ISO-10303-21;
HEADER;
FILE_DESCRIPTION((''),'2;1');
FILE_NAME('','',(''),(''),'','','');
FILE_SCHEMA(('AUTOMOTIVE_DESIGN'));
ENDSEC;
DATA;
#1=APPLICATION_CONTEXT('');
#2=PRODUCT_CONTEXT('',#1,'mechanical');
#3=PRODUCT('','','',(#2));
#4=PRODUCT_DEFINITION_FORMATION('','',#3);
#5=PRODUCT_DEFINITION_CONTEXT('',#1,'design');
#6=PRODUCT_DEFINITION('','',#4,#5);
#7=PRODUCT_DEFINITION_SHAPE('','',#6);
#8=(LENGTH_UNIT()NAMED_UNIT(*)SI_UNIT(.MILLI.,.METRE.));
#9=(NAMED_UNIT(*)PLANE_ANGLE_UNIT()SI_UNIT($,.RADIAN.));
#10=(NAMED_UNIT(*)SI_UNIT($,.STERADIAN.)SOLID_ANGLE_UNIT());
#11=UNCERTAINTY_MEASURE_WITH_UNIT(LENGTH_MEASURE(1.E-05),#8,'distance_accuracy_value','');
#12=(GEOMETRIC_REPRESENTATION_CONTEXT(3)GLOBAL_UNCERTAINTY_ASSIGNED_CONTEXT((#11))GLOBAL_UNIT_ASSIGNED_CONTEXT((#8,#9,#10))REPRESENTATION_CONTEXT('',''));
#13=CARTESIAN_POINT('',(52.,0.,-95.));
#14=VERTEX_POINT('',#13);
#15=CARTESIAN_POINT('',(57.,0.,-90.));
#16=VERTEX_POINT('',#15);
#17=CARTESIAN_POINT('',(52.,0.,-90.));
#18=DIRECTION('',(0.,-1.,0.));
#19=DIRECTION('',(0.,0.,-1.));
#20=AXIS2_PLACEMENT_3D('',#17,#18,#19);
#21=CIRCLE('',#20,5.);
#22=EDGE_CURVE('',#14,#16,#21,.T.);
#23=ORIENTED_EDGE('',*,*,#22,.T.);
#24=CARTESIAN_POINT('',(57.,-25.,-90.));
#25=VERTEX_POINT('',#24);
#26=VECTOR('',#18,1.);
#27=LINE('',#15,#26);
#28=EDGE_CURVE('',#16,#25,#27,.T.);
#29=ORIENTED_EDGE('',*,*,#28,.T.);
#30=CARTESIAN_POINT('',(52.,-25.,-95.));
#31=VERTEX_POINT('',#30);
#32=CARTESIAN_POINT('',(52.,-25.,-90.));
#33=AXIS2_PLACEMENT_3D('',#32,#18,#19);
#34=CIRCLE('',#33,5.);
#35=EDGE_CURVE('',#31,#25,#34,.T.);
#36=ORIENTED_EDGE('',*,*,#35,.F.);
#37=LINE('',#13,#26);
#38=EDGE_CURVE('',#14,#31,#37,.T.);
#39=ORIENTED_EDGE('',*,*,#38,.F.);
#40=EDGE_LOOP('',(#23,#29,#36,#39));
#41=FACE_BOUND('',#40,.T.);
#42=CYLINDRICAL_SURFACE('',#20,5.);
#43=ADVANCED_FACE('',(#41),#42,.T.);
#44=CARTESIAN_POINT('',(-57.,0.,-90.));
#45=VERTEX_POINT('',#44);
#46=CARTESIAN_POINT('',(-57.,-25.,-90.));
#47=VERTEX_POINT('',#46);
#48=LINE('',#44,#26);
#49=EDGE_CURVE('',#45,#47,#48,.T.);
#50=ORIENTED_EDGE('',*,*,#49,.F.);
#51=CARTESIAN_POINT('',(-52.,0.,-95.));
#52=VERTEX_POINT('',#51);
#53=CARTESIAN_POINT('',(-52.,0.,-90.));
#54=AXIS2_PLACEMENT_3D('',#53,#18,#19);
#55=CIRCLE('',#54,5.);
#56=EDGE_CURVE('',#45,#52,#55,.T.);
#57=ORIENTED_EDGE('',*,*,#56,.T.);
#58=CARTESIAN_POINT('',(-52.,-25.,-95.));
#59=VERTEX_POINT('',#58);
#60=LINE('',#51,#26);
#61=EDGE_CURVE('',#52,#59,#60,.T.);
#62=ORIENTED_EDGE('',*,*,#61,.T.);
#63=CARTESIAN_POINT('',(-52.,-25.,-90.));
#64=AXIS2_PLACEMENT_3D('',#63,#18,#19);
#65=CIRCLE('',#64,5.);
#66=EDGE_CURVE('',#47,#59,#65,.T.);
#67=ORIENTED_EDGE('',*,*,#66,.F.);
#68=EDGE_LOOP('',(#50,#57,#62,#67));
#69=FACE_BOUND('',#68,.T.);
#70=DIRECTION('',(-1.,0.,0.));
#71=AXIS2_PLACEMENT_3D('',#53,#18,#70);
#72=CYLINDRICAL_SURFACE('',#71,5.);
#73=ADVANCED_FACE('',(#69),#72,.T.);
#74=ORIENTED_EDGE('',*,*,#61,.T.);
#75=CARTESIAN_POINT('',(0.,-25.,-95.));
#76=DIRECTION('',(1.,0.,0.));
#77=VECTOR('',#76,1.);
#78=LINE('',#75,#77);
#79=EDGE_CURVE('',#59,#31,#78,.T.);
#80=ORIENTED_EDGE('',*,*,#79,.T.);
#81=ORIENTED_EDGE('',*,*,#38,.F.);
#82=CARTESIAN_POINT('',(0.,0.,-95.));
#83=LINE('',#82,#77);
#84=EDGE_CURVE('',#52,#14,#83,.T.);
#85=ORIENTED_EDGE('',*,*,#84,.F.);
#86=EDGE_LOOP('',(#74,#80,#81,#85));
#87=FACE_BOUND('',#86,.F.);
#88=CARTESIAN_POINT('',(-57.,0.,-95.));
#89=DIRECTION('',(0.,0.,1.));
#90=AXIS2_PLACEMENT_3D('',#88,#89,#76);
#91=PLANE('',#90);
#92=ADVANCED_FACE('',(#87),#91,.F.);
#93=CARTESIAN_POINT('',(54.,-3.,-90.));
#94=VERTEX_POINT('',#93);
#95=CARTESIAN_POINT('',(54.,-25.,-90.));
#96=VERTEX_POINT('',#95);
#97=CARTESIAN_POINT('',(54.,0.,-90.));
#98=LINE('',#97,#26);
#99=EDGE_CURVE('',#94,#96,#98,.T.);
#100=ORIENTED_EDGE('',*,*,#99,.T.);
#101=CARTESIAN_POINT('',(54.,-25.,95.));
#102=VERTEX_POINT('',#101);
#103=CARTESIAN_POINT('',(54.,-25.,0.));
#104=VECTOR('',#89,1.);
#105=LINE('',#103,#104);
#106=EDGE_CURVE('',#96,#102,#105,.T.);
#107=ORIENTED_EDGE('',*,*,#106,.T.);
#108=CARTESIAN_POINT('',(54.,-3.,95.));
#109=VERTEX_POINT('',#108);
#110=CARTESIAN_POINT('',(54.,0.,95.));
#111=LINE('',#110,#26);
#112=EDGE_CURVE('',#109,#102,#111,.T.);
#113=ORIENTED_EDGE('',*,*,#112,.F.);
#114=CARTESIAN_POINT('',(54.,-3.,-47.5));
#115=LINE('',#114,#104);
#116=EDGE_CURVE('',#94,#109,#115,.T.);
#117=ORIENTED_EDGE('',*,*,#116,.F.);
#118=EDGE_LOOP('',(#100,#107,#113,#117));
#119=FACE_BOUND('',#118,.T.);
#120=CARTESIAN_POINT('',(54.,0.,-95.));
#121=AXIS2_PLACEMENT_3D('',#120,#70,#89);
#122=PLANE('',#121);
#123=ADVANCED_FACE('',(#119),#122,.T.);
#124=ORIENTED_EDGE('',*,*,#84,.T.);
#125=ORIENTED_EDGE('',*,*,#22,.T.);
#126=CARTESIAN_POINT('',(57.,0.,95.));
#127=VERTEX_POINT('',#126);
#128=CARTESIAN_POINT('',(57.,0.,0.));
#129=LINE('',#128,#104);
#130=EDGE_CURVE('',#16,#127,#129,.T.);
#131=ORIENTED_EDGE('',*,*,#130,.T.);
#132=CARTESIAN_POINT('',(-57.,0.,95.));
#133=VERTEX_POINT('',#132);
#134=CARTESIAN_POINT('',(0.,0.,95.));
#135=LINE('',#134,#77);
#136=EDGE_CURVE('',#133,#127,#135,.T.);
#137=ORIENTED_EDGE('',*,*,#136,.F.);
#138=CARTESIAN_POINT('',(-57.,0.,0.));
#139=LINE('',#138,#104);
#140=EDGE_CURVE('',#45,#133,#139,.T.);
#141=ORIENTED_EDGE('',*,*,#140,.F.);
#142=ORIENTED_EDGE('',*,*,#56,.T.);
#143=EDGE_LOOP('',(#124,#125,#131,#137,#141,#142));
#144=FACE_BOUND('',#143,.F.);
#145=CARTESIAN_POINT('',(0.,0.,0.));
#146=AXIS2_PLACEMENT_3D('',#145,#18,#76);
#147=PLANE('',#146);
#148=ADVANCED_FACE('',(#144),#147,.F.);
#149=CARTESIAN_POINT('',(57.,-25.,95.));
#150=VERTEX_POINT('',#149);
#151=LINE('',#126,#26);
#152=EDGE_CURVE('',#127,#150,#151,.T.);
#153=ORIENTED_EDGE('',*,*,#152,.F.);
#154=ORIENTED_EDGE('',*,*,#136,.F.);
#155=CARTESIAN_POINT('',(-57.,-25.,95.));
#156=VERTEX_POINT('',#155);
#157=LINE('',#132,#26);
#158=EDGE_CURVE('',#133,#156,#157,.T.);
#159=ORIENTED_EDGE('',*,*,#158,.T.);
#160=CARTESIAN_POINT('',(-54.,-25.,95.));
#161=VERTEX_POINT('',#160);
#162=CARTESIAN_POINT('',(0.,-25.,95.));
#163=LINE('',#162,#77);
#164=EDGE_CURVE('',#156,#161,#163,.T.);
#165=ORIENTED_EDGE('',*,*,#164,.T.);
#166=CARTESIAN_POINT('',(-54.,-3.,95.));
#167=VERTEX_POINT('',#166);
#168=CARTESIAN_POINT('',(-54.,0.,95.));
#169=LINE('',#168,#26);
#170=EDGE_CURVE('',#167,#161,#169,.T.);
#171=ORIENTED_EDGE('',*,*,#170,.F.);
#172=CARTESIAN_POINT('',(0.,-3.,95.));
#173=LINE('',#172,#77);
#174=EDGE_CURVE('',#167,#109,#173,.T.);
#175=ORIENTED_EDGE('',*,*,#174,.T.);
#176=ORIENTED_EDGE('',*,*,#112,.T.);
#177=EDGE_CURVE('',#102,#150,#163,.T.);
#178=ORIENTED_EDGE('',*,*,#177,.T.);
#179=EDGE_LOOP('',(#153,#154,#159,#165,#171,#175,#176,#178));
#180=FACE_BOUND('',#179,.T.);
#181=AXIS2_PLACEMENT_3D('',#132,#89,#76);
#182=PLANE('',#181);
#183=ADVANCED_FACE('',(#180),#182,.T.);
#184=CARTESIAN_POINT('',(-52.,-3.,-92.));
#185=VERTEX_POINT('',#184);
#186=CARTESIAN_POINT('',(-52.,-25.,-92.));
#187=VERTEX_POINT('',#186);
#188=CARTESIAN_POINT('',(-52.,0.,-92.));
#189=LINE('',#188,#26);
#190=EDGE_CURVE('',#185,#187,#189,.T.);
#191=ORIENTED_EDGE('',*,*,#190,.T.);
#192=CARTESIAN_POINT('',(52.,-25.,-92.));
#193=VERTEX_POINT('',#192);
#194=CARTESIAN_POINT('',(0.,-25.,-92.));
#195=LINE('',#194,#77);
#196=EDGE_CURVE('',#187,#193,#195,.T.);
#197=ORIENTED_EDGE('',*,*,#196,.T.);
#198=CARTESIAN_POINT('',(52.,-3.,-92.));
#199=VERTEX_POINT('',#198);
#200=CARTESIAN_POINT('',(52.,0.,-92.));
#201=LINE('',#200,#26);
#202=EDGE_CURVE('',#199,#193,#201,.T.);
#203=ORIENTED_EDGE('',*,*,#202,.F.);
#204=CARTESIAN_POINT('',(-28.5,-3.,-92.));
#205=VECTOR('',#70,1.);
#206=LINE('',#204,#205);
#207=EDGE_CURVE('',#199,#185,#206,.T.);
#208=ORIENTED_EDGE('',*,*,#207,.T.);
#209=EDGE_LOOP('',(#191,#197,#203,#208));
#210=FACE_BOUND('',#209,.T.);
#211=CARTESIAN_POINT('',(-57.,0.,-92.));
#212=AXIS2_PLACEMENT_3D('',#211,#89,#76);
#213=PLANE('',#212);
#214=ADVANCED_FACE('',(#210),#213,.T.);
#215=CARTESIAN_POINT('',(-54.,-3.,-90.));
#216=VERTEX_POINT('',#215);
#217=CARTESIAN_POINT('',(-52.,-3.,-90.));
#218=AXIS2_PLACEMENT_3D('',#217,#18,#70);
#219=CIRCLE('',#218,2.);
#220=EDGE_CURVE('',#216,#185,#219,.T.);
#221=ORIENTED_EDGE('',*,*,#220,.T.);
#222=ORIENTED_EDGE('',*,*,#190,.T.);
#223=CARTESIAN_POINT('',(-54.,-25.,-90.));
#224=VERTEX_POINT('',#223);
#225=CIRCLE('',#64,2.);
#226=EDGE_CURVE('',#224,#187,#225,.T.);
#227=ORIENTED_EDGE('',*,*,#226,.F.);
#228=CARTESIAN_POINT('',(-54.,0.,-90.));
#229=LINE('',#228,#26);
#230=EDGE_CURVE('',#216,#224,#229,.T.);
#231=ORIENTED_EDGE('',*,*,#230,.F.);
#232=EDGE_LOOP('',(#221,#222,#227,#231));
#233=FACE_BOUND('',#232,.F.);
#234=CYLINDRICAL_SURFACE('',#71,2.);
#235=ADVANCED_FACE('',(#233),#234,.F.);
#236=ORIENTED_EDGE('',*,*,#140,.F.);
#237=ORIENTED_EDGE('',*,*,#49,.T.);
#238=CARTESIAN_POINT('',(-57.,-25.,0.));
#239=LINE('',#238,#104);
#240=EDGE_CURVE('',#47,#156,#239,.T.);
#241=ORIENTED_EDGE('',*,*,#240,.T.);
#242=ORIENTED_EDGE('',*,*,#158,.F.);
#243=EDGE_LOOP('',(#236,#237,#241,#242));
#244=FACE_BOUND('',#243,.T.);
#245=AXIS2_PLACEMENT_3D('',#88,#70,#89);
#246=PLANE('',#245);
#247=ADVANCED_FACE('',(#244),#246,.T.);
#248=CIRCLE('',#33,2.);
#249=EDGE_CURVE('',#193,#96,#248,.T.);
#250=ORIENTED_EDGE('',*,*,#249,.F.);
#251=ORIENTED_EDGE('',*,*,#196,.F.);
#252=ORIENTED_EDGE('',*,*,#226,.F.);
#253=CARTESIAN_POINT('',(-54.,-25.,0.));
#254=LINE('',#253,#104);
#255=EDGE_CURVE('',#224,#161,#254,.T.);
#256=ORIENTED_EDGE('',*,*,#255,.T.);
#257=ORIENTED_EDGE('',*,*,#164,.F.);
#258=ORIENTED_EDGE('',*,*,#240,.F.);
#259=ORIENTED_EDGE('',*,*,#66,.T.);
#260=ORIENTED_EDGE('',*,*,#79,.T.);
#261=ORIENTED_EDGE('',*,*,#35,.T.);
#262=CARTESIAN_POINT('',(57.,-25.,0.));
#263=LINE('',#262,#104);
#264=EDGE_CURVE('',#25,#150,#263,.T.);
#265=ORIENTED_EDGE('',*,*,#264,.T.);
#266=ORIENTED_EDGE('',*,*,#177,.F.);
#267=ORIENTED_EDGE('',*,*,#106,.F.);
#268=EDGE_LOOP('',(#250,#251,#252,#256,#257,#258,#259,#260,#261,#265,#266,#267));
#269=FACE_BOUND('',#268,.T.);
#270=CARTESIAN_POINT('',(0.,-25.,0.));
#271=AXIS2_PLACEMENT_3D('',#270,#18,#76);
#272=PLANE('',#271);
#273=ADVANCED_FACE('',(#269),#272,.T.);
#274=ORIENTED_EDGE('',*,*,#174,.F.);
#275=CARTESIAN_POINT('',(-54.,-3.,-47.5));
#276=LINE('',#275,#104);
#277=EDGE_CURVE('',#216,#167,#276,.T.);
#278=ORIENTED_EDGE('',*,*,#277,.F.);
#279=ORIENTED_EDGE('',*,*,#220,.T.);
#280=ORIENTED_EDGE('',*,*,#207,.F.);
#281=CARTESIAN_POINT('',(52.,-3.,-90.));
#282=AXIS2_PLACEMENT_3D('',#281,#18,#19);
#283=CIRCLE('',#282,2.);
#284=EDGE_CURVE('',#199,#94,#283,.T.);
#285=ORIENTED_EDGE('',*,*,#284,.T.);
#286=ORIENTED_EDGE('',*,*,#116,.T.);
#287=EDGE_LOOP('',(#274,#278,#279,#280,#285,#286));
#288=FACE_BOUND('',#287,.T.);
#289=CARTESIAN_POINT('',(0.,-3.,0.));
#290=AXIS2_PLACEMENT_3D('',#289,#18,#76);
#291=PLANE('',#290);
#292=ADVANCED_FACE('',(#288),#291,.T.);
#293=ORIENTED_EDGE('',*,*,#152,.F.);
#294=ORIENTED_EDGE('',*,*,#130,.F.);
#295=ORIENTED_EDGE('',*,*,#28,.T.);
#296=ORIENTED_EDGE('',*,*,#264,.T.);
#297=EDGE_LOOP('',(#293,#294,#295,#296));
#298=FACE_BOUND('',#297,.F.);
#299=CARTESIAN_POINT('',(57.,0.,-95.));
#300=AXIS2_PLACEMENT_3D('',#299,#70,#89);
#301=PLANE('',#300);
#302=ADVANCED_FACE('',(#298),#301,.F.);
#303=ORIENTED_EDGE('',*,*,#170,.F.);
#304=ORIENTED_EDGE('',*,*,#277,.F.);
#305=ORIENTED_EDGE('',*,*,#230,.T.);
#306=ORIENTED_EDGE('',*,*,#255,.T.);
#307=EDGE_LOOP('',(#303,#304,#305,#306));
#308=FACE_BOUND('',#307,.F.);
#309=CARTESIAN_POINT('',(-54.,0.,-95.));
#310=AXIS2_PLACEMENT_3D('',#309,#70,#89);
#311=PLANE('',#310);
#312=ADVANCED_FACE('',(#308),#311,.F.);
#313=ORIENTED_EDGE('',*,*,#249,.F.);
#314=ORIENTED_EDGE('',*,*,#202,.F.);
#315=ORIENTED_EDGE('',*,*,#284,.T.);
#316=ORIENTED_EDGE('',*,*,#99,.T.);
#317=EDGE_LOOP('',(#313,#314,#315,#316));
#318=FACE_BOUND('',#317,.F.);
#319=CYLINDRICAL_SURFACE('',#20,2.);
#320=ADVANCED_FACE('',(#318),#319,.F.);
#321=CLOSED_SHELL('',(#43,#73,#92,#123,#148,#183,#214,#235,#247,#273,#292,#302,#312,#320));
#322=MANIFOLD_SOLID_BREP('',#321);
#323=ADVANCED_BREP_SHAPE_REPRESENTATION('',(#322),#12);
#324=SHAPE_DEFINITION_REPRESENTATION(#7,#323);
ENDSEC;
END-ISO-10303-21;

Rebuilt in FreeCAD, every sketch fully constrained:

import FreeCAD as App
import Part
import Sketcher

V = App.Vector


def edges_at(feature, points):
    """Names of the edges that pass closest to the given points."""
    edges = feature.Shape.Edges
    near = lambda p: min(range(len(edges)), key=lambda i: edges[i].distToShape(Part.Vertex(*p))[0])
    return sorted({f"Edge{near(p) + 1}" for p in points})


def faces_at(feature, points):
    """Names of the faces that lie closest to the given points."""
    faces = feature.Shape.Faces
    near = lambda p: min(range(len(faces)), key=lambda i: faces[i].distToShape(Part.Vertex(*p))[0])
    return sorted({f"Face{near(p) + 1}" for p in points})


def add_polygon(sketch, points):
    """Adds a closed chain of lines whose ends are joined by coincident constraints."""
    first, n = sketch.GeometryCount, len(points)
    for a, b in zip(points, points[1:] + points[:1]):
        sketch.addGeometry(Part.LineSegment(App.Vector(*a, 0), App.Vector(*b, 0)), False)
    for i in range(n):
        sketch.addConstraint(Sketcher.Constraint("Coincident", first + i, 2, first + (i + 1) % n, 1))

doc = App.newDocument("Part")
params = doc.addObject("Spreadsheet::Sheet", "Params")
for row, (alias, value) in enumerate([
    ("sketch1_width", "114 mm"),
    ("sketch1_height", "190 mm"),
    ("pad1_length", "25 mm"),
    ("fillet_radius", "5 mm"),
    ("thickness_wall", "3 mm"),
], start=1):
    params.set(f"A{row}", alias)
    params.set(f"B{row}", "=" + value)
    params.setAlias(f"B{row}", alias)

body = doc.addObject("PartDesign::Body", "Body")

sketch1 = doc.addObject("Sketcher::SketchObject", "Sketch")
body.addObject(sketch1)
sketch1.AttachmentSupport = (doc.XZ_Plane, [""])
sketch1.MapMode = "FlatFace"
add_polygon(sketch1, [(-57, 95), (-57, -95), (57, -95), (57, 95)])
sketch1.addConstraint(Sketcher.Constraint("Vertical", 0))
sketch1.addConstraint(Sketcher.Constraint("Horizontal", 1))
sketch1.addConstraint(Sketcher.Constraint("Vertical", 2))
sketch1.addConstraint(Sketcher.Constraint("Horizontal", 3))
sketch1.addConstraint(Sketcher.Constraint("Symmetric", 0, 2, 2, 2, -1, 1))
sketch1.addConstraint(Sketcher.Constraint("DistanceX", 1, 1, 1, 2, 114.0))
sketch1.addConstraint(Sketcher.Constraint("DistanceY", 0, 2, 0, 1, 190.0))
sketch1.setExpression("Constraints[9]", "Params.sketch1_width")
sketch1.setExpression("Constraints[10]", "Params.sketch1_height")
pad1 = doc.addObject("PartDesign::Pad", "Pad")
body.addObject(pad1)
pad1.Profile = sketch1
pad1.setExpression("Length", "Params.pad1_length")
doc.recompute()

fillet = doc.addObject("PartDesign::Fillet", "Fillet")
body.addObject(fillet)
fillet.Base = (pad1, edges_at(pad1, [(57, -12.5, -95), (-57, -12.5, -95)]))
fillet.setExpression("Radius", "Params.fillet_radius")
doc.recompute()

thickness = doc.addObject("PartDesign::Thickness", "Thickness")
body.addObject(thickness)
thickness.Base = (fillet, faces_at(fillet, [(0, -25, 0), (0, -12.5, 95)]))
thickness.setExpression("Value", "Params.thickness_wall")
thickness.Reversed = True
thickness.Join = "Arc"

doc.recompute()
